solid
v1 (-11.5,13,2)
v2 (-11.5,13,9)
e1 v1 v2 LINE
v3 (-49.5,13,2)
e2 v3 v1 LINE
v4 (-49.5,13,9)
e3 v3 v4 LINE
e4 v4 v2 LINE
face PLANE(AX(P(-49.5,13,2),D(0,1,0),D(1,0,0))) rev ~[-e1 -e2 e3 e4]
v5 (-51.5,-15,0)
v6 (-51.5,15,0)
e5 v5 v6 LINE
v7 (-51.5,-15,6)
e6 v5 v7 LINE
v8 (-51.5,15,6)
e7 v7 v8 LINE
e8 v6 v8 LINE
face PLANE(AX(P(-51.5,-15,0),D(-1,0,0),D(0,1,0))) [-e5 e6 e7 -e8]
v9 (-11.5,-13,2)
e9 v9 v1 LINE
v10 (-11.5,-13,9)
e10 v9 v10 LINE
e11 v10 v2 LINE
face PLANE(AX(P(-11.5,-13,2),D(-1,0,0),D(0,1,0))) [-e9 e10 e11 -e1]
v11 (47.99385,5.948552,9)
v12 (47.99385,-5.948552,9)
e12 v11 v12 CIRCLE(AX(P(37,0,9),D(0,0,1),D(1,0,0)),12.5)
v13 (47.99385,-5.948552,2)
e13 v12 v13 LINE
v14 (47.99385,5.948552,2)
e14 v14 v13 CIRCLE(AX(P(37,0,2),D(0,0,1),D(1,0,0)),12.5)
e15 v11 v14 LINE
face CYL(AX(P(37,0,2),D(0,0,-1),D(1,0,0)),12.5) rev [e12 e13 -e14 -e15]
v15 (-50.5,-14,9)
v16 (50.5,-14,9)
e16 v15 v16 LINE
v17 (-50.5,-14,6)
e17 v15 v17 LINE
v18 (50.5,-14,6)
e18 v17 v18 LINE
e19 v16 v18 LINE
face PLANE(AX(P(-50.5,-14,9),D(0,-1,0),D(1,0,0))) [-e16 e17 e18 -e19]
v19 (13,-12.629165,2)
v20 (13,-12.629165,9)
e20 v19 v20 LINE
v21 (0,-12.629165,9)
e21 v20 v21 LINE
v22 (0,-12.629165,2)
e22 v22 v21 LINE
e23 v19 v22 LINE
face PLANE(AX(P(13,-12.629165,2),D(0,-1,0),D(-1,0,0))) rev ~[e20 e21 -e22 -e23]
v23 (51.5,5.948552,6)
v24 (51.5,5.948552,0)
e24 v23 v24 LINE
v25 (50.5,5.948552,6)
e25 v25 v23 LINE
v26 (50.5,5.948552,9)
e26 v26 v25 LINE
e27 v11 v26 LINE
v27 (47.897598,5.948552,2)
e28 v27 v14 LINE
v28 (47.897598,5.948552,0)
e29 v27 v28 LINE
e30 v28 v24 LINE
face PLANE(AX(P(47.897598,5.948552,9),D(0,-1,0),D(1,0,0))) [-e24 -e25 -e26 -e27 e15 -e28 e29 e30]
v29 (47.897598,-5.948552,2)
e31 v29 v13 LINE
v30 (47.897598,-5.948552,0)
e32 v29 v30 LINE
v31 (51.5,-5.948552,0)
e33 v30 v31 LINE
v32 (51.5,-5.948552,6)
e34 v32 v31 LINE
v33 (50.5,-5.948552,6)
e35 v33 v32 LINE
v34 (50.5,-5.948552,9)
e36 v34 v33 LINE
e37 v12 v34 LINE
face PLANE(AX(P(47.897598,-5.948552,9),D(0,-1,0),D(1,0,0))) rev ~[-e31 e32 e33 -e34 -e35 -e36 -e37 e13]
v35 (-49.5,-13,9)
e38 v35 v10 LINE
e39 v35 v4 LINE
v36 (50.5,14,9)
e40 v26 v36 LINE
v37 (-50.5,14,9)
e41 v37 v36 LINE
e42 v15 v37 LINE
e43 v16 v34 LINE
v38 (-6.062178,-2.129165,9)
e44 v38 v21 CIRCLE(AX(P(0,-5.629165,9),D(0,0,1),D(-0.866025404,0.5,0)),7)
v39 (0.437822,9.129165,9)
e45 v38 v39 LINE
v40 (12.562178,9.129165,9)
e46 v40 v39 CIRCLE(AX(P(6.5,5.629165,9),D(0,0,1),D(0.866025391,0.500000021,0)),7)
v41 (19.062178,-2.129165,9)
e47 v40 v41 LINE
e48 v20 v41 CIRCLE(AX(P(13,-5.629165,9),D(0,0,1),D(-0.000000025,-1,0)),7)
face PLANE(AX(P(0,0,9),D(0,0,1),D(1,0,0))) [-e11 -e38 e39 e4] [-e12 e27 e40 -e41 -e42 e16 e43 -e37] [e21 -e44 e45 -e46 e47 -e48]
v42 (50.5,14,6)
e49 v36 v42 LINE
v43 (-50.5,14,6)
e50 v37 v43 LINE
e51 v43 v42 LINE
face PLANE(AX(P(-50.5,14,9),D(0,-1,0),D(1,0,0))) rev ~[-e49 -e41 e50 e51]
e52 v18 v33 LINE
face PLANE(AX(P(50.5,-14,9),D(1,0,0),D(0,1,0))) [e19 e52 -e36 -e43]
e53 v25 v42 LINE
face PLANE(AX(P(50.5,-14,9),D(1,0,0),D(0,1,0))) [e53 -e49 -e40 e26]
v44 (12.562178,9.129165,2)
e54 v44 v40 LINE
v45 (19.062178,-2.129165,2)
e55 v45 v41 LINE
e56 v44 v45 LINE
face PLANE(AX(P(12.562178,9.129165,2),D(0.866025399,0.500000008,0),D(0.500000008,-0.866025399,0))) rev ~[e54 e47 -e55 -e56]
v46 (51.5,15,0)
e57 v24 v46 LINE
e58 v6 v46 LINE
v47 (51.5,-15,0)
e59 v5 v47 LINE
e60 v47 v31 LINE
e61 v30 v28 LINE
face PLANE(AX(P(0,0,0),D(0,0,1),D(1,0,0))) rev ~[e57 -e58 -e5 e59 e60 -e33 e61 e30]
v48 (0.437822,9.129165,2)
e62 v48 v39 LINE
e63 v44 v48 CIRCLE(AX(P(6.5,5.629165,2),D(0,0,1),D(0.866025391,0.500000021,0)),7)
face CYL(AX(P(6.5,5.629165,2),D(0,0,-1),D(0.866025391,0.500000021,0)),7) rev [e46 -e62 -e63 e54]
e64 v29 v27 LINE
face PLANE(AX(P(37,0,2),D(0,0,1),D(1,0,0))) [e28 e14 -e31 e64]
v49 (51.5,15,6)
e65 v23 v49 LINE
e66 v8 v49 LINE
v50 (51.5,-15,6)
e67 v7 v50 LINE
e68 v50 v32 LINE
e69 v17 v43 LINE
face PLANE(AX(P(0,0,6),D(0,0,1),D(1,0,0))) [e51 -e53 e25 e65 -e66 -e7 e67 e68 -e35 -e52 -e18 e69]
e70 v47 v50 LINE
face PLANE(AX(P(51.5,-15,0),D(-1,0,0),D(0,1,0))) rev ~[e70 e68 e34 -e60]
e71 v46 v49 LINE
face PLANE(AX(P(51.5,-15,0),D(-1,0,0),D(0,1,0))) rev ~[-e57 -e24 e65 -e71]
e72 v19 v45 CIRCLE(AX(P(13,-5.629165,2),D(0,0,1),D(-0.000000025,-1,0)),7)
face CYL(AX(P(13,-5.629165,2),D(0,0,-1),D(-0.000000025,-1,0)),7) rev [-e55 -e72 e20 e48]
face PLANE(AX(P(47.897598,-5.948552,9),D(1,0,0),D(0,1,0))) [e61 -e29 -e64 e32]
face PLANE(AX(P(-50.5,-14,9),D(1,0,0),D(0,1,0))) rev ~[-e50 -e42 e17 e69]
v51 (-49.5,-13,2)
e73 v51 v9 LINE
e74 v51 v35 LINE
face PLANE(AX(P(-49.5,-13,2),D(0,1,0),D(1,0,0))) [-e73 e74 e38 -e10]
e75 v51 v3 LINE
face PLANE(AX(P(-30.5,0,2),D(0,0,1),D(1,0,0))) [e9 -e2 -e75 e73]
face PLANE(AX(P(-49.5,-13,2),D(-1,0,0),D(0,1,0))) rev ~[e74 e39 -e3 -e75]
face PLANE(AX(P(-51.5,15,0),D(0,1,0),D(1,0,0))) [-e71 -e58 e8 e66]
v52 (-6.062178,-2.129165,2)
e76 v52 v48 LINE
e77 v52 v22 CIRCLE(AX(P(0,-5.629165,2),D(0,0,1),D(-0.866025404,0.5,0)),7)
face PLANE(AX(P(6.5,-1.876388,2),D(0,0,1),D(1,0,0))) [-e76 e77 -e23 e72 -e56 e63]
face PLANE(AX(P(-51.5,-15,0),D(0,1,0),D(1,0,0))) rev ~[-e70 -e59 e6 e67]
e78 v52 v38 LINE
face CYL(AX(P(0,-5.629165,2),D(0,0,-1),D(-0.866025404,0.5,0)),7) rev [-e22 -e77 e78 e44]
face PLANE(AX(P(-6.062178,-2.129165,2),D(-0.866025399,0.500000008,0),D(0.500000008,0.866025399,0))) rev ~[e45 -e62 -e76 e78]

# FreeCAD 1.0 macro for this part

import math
import FreeCAD as App
import Part
import Sketcher
from FreeCAD import Vector
Q = App.Units.Quantity


def add_polygon(sketch, points):
    """Adds a closed chain of lines whose ends are joined by coincident constraints."""
    first, n = sketch.GeometryCount, len(points)
    for a, b in zip(points, points[1:] + points[:1]):
        sketch.addGeometry(Part.LineSegment(App.Vector(*a, 0), App.Vector(*b, 0)), False)
    for i in range(n):
        sketch.addConstraint(Sketcher.Constraint("Coincident", first + i, 2, first + (i + 1) % n, 1))

doc = App.newDocument("Part")
params = doc.addObject("Spreadsheet::Sheet", "Params")
for row, (alias, value) in enumerate([
    ("sketch1_width", "103 mm"),
    ("sketch1_height", "30 mm"),
    ("pad1_length", "9 mm"),
    ("sketch2_diameter", "25 mm"),
    ("sketch2_radius", "7 mm"),
    ("sketch2_width", "38 mm"),
    ("sketch2_width2", "13 mm"),
    ("sketch2_height", "26 mm"),
    ("pocket1_length", "7 mm"),
    ("sketch3_width", "103 mm"),
    ("sketch3_width2", "101 mm"),
    ("sketch3_height", "30 mm"),
    ("sketch3_height2", "28 mm"),
    ("pocket2_length", "3 mm"),
    ("pocket3_length", "10 mm"),
], start=1):
    params.set(f"A{row}", alias)
    params.set(f"B{row}", "=" + value)
    params.setAlias(f"B{row}", alias)

body = doc.addObject("PartDesign::Body", "Body")

# Sketch on XY plane
sketch1 = doc.addObject("Sketcher::SketchObject", "Sketch")
body.addObject(sketch1)
sketch1.AttachmentSupport = (doc.XY_Plane, [""])
sketch1.MapMode = "FlatFace"
add_polygon(sketch1, [(-52, 15), (-52, -15), (52, -15), (52, 15)])  # lines 0-3
sketch1.addConstraint([
    Sketcher.Constraint("Vertical", 0),
    Sketcher.Constraint("Horizontal", 1),
    Sketcher.Constraint("Vertical", 2),
    Sketcher.Constraint("Horizontal", 3),
    Sketcher.Constraint("Symmetric", 0, 2, 2, 2, -1, 1),
    Sketcher.Constraint("DistanceX", 1, 1, 1, 2, 103.0),
    Sketcher.Constraint("DistanceY", 0, 2, 0, 1, 30.0),
])
sketch1.setExpression("Constraints[9]", "Params.sketch1_width")
sketch1.setExpression("Constraints[10]", "Params.sketch1_height")
pad1 = doc.addObject("PartDesign::Pad", "Pad")
body.addObject(pad1)
pad1.Profile = sketch1
pad1.setExpression("Length", "Params.pad1_length")

# Sketch on XY plane
sketch2 = doc.addObject("Sketcher::SketchObject", "Sketch001")
body.addObject(sketch2)
sketch2.AttachmentSupport = (doc.XY_Plane, [""])
sketch2.MapMode = "FlatFace"
sketch2.AttachmentOffset = App.Placement(Vector(0, 0, 2), App.Rotation())
sketch2.addGeometry(Part.Circle(Vector(37, 0, 0), Vector(0, 0, 1), 12), False)  # 0
add_polygon(sketch2, [(-50, 13), (-50, -13), (-12, -13), (-12, 13)])  # lines 1-4
sketch2.addGeometry(Part.ArcOfCircle(Part.Circle(Vector(6, 6, 0), Vector(0, 0, 1), 7), math.radians(30), math.radians(150)), False)  # 5
sketch2.addGeometry(Part.LineSegment(Vector(0, 9, 0), Vector(-6, -2, 0)), False)  # 6
sketch2.addGeometry(Part.ArcOfCircle(Part.Circle(Vector(0, -6, 0), Vector(0, 0, 1), 7), math.radians(150), math.radians(270)), False)  # 7
sketch2.addGeometry(Part.LineSegment(Vector(0, -13, 0), Vector(13, -13, 0)), False)  # 8
sketch2.addGeometry(Part.ArcOfCircle(Part.Circle(Vector(13, -6, 0), Vector(0, 0, 1), 7), math.radians(-90), math.radians(30)), False)  # 9
sketch2.addGeometry(Part.LineSegment(Vector(19, -2, 0), Vector(13, 9, 0)), False)  # 10
sketch2.addConstraint([
    Sketcher.Constraint("Tangent", 5, 2, 6, 1),
    Sketcher.Constraint("Tangent", 6, 2, 7, 1),
    Sketcher.Constraint("Tangent", 7, 2, 8, 1),
    Sketcher.Constraint("Tangent", 8, 2, 9, 1),
    Sketcher.Constraint("Tangent", 9, 2, 10, 1),
    Sketcher.Constraint("Tangent", 10, 2, 5, 1),
    Sketcher.Constraint("Vertical", 1),
    Sketcher.Constraint("Horizontal", 2),
    Sketcher.Constraint("Vertical", 3),
    Sketcher.Constraint("Horizontal", 4),
    Sketcher.Constraint("Horizontal", 8),
    Sketcher.Constraint("Equal", 5, 7),
    Sketcher.Constraint("Equal", 7, 9),
    Sketcher.Constraint("PointOnObject", 0, 3, -1),
    Sketcher.Constraint("PointOnObject", 7, 3, -2),
    Sketcher.Constraint("Horizontal", 6, 2, 9, 2),
    Sketcher.Constraint("Diameter", 0, 25.0),
    Sketcher.Constraint("Radius", 5, 7.0),
    Sketcher.Constraint("DistanceX", 2, 1, 2, 2, 38.0),
    Sketcher.Constraint("DistanceX", 8, 1, 8, 2, 13.0),
    Sketcher.Constraint("DistanceY", 1, 2, 1, 1, 26.0),
    Sketcher.Constraint("Angle", 6, Q("-120.000001 deg")),
    Sketcher.Constraint("DistanceX", -1, 1, 0, 3, 37.0),
    Sketcher.Constraint("DistanceY", 1, 2, -1, 1, 13.0),
    Sketcher.Constraint("DistanceX", 1, 2, 5, 3, 56.0),
    Sketcher.Constraint("DistanceY", -1, 1, 5, 3, 5.629165),
])
sketch2.setExpression("Constraints[20]", "Params.sketch2_diameter")
sketch2.setExpression("Constraints[21]", "Params.sketch2_radius")
sketch2.setExpression("Constraints[22]", "Params.sketch2_width")
sketch2.setExpression("Constraints[23]", "Params.sketch2_width2")
sketch2.setExpression("Constraints[24]", "Params.sketch2_height")
pocket1 = doc.addObject("PartDesign::Pocket", "Pocket")
body.addObject(pocket1)
pocket1.Profile = sketch2
pocket1.setExpression("Length", "Params.pocket1_length")
pocket1.Reversed = True

# Sketch on XY plane
sketch3 = doc.addObject("Sketcher::SketchObject", "Sketch002")
body.addObject(sketch3)
sketch3.AttachmentSupport = (doc.XY_Plane, [""])
sketch3.MapMode = "FlatFace"
sketch3.AttachmentOffset = App.Placement(Vector(0, 0, 9), App.Rotation())
add_polygon(sketch3, [(-52, 15), (-52, -15), (52, -15), (52, 15)])  # lines 0-3
add_polygon(sketch3, [(50, -14), (-50, -14), (-50, 14), (50, 14)])  # lines 4-7
sketch3.addConstraint([
    Sketcher.Constraint("Vertical", 0),
    Sketcher.Constraint("Horizontal", 1),
    Sketcher.Constraint("Vertical", 2),
    Sketcher.Constraint("Horizontal", 3),
    Sketcher.Constraint("Horizontal", 4),
    Sketcher.Constraint("Vertical", 5),
    Sketcher.Constraint("Horizontal", 6),
    Sketcher.Constraint("Vertical", 7),
    Sketcher.Constraint("Symmetric", 0, 2, 2, 2, -1, 1),
    Sketcher.Constraint("Symmetric", 4, 2, 6, 2, -1, 1),
    Sketcher.Constraint("DistanceX", 1, 1, 1, 2, 103.0),
    Sketcher.Constraint("DistanceX", 4, 2, 4, 1, 101.0),
    Sketcher.Constraint("DistanceY", 0, 2, 0, 1, 30.0),
    Sketcher.Constraint("DistanceY", 5, 1, 5, 2, 28.0),
])
sketch3.setExpression("Constraints[18]", "Params.sketch3_width")
sketch3.setExpression("Constraints[19]", "Params.sketch3_width2")
sketch3.setExpression("Constraints[20]", "Params.sketch3_height")
sketch3.setExpression("Constraints[21]", "Params.sketch3_height2")
pocket2 = doc.addObject("PartDesign::Pocket", "Pocket001")
body.addObject(pocket2)
pocket2.Profile = sketch3
pocket2.setExpression("Length", "Params.pocket2_length")

# Sketch on XY plane
sketch4 = doc.addObject("Sketcher::SketchObject", "Sketch003")
body.addObject(sketch4)
sketch4.AttachmentSupport = (doc.XY_Plane, [""])
sketch4.MapMode = "FlatFace"
sketch4.AttachmentOffset = App.Placement(Vector(0, 0, 9), App.Rotation())
add_polygon(sketch4, [(47.9, 5.9), (47.9, -5.9), (51.5, -5.9), (51.5, 5.9)])  # lines 0-3
sketch4.addConstraint([
    Sketcher.Constraint("Vertical", 0),
    Sketcher.Constraint("Horizontal", 1),
    Sketcher.Constraint("Vertical", 2),
    Sketcher.Constraint("Horizontal", 3),
    Sketcher.Constraint("DistanceX", -1, 1, 1, 2, 51.5),
    Sketcher.Constraint("DistanceX", 1, 1, 1, 2, 3.602402),
    Sketcher.Constraint("DistanceY", 0, 2, 0, 1, 11.897104),
    Sketcher.Constraint("DistanceY", 0, 2, -1, 1, 5.948552),
])
pocket3 = doc.addObject("PartDesign::Pocket", "Pocket002")
body.addObject(pocket3)
pocket3.Profile = sketch4
pocket3.setExpression("Length", "Params.pocket3_length")

doc.recompute()
